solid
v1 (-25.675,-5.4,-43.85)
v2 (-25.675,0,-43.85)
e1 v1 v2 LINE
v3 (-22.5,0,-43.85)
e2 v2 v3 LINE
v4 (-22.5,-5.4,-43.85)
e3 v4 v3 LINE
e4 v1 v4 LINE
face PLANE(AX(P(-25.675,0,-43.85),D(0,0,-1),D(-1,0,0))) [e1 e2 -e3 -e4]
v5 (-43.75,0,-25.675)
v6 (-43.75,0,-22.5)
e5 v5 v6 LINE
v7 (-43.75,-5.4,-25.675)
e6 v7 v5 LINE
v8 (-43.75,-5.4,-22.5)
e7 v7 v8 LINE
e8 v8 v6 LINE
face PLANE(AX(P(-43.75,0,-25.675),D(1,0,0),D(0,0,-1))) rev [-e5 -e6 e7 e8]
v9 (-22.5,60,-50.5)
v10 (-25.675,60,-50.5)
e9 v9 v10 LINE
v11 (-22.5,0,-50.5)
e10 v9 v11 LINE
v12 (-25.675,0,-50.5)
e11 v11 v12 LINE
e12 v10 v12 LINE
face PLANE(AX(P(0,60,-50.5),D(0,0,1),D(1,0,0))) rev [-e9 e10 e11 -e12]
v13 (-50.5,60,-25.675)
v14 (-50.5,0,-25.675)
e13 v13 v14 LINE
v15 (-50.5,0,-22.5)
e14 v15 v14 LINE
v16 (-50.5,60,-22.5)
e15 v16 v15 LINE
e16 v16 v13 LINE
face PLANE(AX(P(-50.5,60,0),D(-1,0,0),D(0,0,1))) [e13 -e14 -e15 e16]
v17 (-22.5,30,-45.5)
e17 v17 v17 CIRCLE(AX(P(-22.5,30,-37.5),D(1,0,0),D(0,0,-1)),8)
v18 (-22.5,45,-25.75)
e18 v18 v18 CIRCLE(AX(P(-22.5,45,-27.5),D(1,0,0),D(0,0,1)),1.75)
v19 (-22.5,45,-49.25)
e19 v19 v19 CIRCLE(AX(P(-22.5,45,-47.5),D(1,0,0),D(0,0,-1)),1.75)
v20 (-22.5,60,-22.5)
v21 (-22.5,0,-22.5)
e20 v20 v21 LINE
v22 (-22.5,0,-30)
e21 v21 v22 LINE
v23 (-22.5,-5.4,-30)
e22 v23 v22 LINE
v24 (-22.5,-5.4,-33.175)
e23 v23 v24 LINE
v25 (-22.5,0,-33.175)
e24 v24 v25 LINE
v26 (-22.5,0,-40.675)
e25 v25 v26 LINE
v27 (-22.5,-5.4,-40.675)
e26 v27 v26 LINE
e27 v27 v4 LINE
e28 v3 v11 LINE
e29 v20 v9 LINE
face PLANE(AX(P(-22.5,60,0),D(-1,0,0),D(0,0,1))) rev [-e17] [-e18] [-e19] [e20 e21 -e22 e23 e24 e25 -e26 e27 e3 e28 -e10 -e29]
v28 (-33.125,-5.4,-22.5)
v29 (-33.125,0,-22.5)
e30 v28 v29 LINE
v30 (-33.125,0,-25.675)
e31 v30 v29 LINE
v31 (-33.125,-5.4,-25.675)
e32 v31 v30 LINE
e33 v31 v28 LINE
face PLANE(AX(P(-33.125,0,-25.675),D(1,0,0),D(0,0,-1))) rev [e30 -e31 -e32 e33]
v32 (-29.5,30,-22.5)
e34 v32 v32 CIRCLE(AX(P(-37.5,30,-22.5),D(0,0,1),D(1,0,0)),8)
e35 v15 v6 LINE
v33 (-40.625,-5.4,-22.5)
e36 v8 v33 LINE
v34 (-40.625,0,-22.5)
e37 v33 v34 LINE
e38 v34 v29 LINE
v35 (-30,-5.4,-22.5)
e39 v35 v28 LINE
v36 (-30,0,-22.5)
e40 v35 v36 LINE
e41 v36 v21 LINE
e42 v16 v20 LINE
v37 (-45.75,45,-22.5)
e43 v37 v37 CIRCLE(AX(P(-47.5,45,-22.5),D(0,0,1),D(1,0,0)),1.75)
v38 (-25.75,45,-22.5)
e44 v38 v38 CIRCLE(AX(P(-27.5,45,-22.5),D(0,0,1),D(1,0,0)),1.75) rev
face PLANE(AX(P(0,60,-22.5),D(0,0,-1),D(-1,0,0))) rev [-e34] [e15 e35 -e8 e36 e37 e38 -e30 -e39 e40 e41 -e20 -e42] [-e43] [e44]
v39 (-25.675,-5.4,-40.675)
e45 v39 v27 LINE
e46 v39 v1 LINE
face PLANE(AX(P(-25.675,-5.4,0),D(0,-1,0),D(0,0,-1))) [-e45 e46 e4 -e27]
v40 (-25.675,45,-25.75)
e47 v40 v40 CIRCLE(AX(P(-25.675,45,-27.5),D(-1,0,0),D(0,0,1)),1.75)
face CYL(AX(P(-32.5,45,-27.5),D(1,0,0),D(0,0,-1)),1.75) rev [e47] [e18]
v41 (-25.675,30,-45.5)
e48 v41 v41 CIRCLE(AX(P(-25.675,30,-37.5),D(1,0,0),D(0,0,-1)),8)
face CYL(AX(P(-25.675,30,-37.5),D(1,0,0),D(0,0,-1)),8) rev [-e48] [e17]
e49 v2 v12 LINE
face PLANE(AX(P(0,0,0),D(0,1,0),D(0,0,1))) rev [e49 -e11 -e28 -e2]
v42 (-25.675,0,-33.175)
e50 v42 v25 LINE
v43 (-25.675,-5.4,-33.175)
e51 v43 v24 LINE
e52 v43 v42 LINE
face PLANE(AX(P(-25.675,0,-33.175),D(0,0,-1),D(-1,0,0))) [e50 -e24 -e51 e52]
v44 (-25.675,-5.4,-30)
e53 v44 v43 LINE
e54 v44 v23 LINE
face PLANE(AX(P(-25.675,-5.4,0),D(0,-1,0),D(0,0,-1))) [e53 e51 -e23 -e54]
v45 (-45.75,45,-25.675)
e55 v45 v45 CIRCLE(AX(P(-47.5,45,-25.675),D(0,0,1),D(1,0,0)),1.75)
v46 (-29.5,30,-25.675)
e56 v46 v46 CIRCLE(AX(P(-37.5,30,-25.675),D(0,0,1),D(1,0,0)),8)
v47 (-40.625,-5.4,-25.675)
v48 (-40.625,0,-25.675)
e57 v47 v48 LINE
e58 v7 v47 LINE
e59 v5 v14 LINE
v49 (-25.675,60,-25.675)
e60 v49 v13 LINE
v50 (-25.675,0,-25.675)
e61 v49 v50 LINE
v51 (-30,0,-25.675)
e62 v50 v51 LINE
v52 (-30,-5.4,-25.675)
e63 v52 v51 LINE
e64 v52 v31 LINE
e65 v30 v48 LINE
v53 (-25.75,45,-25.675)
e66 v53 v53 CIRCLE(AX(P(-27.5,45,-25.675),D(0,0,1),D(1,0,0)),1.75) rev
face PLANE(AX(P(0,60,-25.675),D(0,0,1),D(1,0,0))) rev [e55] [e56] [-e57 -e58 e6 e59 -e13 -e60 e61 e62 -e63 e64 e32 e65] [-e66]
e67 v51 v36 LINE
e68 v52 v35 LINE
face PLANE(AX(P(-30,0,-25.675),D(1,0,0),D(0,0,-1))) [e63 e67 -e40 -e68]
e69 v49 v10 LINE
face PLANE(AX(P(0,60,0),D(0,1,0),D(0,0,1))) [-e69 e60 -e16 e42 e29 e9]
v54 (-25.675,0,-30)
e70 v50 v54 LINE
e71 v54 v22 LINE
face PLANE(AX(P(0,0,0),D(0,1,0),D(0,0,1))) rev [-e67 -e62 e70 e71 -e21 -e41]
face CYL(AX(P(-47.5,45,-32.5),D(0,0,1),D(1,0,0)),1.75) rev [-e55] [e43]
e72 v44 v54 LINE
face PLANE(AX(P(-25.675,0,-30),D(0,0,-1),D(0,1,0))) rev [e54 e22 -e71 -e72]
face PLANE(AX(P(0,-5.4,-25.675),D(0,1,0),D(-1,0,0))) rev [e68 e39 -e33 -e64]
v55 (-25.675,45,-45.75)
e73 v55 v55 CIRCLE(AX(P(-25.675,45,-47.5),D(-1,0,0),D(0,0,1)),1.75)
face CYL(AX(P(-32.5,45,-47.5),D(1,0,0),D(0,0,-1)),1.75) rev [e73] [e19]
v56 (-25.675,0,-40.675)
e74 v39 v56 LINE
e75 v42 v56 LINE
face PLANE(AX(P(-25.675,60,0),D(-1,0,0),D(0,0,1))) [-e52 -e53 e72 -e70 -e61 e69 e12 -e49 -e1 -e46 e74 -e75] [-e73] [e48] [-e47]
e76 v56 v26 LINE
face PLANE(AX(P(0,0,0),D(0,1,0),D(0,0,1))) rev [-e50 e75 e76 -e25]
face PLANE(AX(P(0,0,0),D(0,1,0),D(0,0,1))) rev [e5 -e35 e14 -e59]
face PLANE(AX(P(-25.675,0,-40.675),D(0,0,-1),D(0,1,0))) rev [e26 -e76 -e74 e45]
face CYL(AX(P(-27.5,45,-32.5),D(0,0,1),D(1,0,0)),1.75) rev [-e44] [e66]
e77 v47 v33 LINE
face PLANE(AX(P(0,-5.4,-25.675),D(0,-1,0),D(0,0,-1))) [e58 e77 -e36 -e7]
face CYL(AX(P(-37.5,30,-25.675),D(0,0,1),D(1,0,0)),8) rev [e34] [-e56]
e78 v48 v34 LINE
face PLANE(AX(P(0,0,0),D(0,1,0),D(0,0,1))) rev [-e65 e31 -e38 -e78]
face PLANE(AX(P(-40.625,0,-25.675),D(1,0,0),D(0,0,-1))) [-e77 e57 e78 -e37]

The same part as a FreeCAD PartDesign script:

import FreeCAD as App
import Part
import Sketcher

doc = App.newDocument("Part")
body = doc.addObject("PartDesign::Body", "Body")

# Sketch on XZ plane
sketch1 = doc.addObject("Sketcher::SketchObject", "Sketch")
body.addObject(sketch1)
sketch1.AttachmentSupport = (doc.XZ_Plane, [""])
sketch1.MapMode = "FlatFace"
sketch1.addGeometry(Part.LineSegment(App.Vector(-50.5, -25.7, 0), App.Vector(-50.5, -22.5, 0)), False)
sketch1.addGeometry(Part.LineSegment(App.Vector(-50.5, -22.5, 0), App.Vector(-22.5, -22.5, 0)), False)
sketch1.addGeometry(Part.LineSegment(App.Vector(-22.5, -22.5, 0), App.Vector(-22.5, -50.5, 0)), False)
sketch1.addGeometry(Part.LineSegment(App.Vector(-22.5, -50.5, 0), App.Vector(-25.7, -50.5, 0)), False)
sketch1.addGeometry(Part.LineSegment(App.Vector(-25.7, -50.5, 0), App.Vector(-25.7, -25.7, 0)), False)
sketch1.addGeometry(Part.LineSegment(App.Vector(-25.7, -25.7, 0), App.Vector(-50.5, -25.7, 0)), False)
sketch1.addConstraint(Sketcher.Constraint("Coincident", 0, 2, 1, 1))
sketch1.addConstraint(Sketcher.Constraint("Coincident", 1, 2, 2, 1))
sketch1.addConstraint(Sketcher.Constraint("Coincident", 2, 2, 3, 1))
sketch1.addConstraint(Sketcher.Constraint("Coincident", 3, 2, 4, 1))
sketch1.addConstraint(Sketcher.Constraint("Coincident", 4, 2, 5, 1))
sketch1.addConstraint(Sketcher.Constraint("Coincident", 5, 2, 0, 1))
sketch1.addConstraint(Sketcher.Constraint("Vertical", 0))
sketch1.addConstraint(Sketcher.Constraint("Horizontal", 1))
sketch1.addConstraint(Sketcher.Constraint("Vertical", 2))
sketch1.addConstraint(Sketcher.Constraint("Horizontal", 3))
sketch1.addConstraint(Sketcher.Constraint("Vertical", 4))
sketch1.addConstraint(Sketcher.Constraint("Horizontal", 5))
sketch1.addConstraint(Sketcher.Constraint("Equal", 3, 0))
sketch1.addConstraint(Sketcher.Constraint("Equal", 1, 2))
sketch1.addConstraint(Sketcher.Constraint("DistanceX", 1, 1, 1, 2, 28.0))
sketch1.addConstraint(Sketcher.Constraint("DistanceX", 0, 2, -1, 1, 50.5))
sketch1.addConstraint(Sketcher.Constraint("DistanceY", 0, 2, -1, 1, 22.5))
sketch1.addConstraint(Sketcher.Constraint("DistanceX", 3, 2, 3, 1, 3.175))
pad1 = doc.addObject("PartDesign::Pad", "Pad")
body.addObject(pad1)
pad1.Profile = sketch1
pad1.Length = 60
pad1.Reversed = True

# Sketch on XY plane
sketch2 = doc.addObject("Sketcher::SketchObject", "Sketch001")
body.addObject(sketch2)
sketch2.AttachmentSupport = (doc.XY_Plane, [""])
sketch2.MapMode = "FlatFace"
sketch2.AttachmentOffset = App.Placement(App.Vector(0, 0, -22.5), App.Rotation())
sketch2.addGeometry(Part.LineSegment(App.Vector(-43.8, 0, 0), App.Vector(-43.8, -5.4, 0)), False)
sketch2.addGeometry(Part.LineSegment(App.Vector(-43.8, -5.4, 0), App.Vector(-40.6, -5.4, 0)), False)
sketch2.addGeometry(Part.LineSegment(App.Vector(-40.6, -5.4, 0), App.Vector(-40.6, 0, 0)), False)
sketch2.addGeometry(Part.LineSegment(App.Vector(-40.6, 0, 0), App.Vector(-43.8, 0, 0)), False)
sketch2.addGeometry(Part.LineSegment(App.Vector(-33.1, 0, 0), App.Vector(-33.1, -5.4, 0)), False)
sketch2.addGeometry(Part.LineSegment(App.Vector(-33.1, -5.4, 0), App.Vector(-30, -5.4, 0)), False)
sketch2.addGeometry(Part.LineSegment(App.Vector(-30, -5.4, 0), App.Vector(-30, 0, 0)), False)
sketch2.addGeometry(Part.LineSegment(App.Vector(-30, 0, 0), App.Vector(-33.1, 0, 0)), False)
sketch2.addConstraint(Sketcher.Constraint("Coincident", 0, 2, 1, 1))
sketch2.addConstraint(Sketcher.Constraint("Coincident", 1, 2, 2, 1))
sketch2.addConstraint(Sketcher.Constraint("Coincident", 2, 2, 3, 1))
sketch2.addConstraint(Sketcher.Constraint("Coincident", 3, 2, 0, 1))
sketch2.addConstraint(Sketcher.Constraint("Coincident", 4, 2, 5, 1))
sketch2.addConstraint(Sketcher.Constraint("Coincident", 5, 2, 6, 1))
sketch2.addConstraint(Sketcher.Constraint("Coincident", 6, 2, 7, 1))
sketch2.addConstraint(Sketcher.Constraint("Coincident", 7, 2, 4, 1))
sketch2.addConstraint(Sketcher.Constraint("Vertical", 0))
sketch2.addConstraint(Sketcher.Constraint("Horizontal", 1))
sketch2.addConstraint(Sketcher.Constraint("Vertical", 2))
sketch2.addConstraint(Sketcher.Constraint("Horizontal", 3))
sketch2.addConstraint(Sketcher.Constraint("Vertical", 4))
sketch2.addConstraint(Sketcher.Constraint("Horizontal", 5))
sketch2.addConstraint(Sketcher.Constraint("Vertical", 6))
sketch2.addConstraint(Sketcher.Constraint("Horizontal", 7))
sketch2.addConstraint(Sketcher.Constraint("PointOnObject", 2, 2, -1))
sketch2.addConstraint(Sketcher.Constraint("PointOnObject", 6, 2, -1))
sketch2.addConstraint(Sketcher.Constraint("Horizontal", 1, 2, 4, 2))
sketch2.addConstraint(Sketcher.Constraint("Equal", 3, 5))
sketch2.addConstraint(Sketcher.Constraint("DistanceY", 0, 2, 0, 1, 5.4))
sketch2.addConstraint(Sketcher.Constraint("DistanceX", 5, 2, -1, 1, 30.0))
sketch2.addConstraint(Sketcher.Constraint("DistanceX", 1, 2, 4, 2, 7.5))
sketch2.addConstraint(Sketcher.Constraint("DistanceX", 1, 1, 1, 2, 3.125))
pad2 = doc.addObject("PartDesign::Pad", "Pad001")
body.addObject(pad2)
pad2.Profile = sketch2
pad2.Length = 3.175
pad2.Reversed = True

# Sketch on XY plane
sketch3 = doc.addObject("Sketcher::SketchObject", "Sketch002")
body.addObject(sketch3)
sketch3.AttachmentSupport = (doc.XY_Plane, [""])
sketch3.MapMode = "FlatFace"
sketch3.AttachmentOffset = App.Placement(App.Vector(0, 0, -22.5), App.Rotation())
sketch3.addGeometry(Part.Circle(App.Vector(-38, 30, 0), App.Vector(0, 0, 1), 8), False)
sketch3.addConstraint(Sketcher.Constraint("Diameter", 0, 16.0))
sketch3.addConstraint(Sketcher.Constraint("DistanceY", -1, 1, 0, 3, 30.0))
sketch3.addConstraint(Sketcher.Constraint("DistanceX", 0, 3, -1, 1, 37.5))
pocket1 = doc.addObject("PartDesign::Pocket", "Pocket")
body.addObject(pocket1)
pocket1.Profile = sketch3
pocket1.Length = 3.175

# Sketch on YZ plane
sketch4 = doc.addObject("Sketcher::SketchObject", "Sketch003")
body.addObject(sketch4)
sketch4.AttachmentSupport = (doc.YZ_Plane, [""])
sketch4.MapMode = "FlatFace"
sketch4.AttachmentOffset = App.Placement(App.Vector(0, 0, -22.5), App.Rotation())
sketch4.addGeometry(Part.Circle(App.Vector(30, -38, 0), App.Vector(0, 0, 1), 8), False)
sketch4.addConstraint(Sketcher.Constraint("Diameter", 0, 16.0))
sketch4.addConstraint(Sketcher.Constraint("DistanceX", -1, 1, 0, 3, 30.0))
sketch4.addConstraint(Sketcher.Constraint("DistanceY", 0, 3, -1, 1, 37.5))
pocket2 = doc.addObject("PartDesign::Pocket", "Pocket001")
body.addObject(pocket2)
pocket2.Profile = sketch4
pocket2.Length = 3.175

# Sketch on YZ plane
sketch5 = doc.addObject("Sketcher::SketchObject", "Sketch004")
body.addObject(sketch5)
sketch5.AttachmentSupport = (doc.YZ_Plane, [""])
sketch5.MapMode = "FlatFace"
sketch5.AttachmentOffset = App.Placement(App.Vector(0, 0, -22.5), App.Rotation())
sketch5.addGeometry(Part.LineSegment(App.Vector(0, -40.7, 0), App.Vector(-5.4, -40.7, 0)), False)
sketch5.addGeometry(Part.LineSegment(App.Vector(-5.4, -40.7, 0), App.Vector(-5.4, -43.9, 0)), False)
sketch5.addGeometry(Part.LineSegment(App.Vector(-5.4, -43.9, 0), App.Vector(0, -43.9, 0)), False)
sketch5.addGeometry(Part.LineSegment(App.Vector(0, -43.9, 0), App.Vector(0, -40.7, 0)), False)
sketch5.addGeometry(Part.LineSegment(App.Vector(0, -30, 0), App.Vector(-5.4, -30, 0)), False)
sketch5.addGeometry(Part.LineSegment(App.Vector(-5.4, -30, 0), App.Vector(-5.4, -33.2, 0)), False)
sketch5.addGeometry(Part.LineSegment(App.Vector(-5.4, -33.2, 0), App.Vector(0, -33.2, 0)), False)
sketch5.addGeometry(Part.LineSegment(App.Vector(0, -33.2, 0), App.Vector(0, -30, 0)), False)
sketch5.addConstraint(Sketcher.Constraint("Coincident", 0, 2, 1, 1))
sketch5.addConstraint(Sketcher.Constraint("Coincident", 1, 2, 2, 1))
sketch5.addConstraint(Sketcher.Constraint("Coincident", 2, 2, 3, 1))
sketch5.addConstraint(Sketcher.Constraint("Coincident", 3, 2, 0, 1))
sketch5.addConstraint(Sketcher.Constraint("Coincident", 4, 2, 5, 1))
sketch5.addConstraint(Sketcher.Constraint("Coincident", 5, 2, 6, 1))
sketch5.addConstraint(Sketcher.Constraint("Coincident", 6, 2, 7, 1))
sketch5.addConstraint(Sketcher.Constraint("Coincident", 7, 2, 4, 1))
sketch5.addConstraint(Sketcher.Constraint("Horizontal", 0))
sketch5.addConstraint(Sketcher.Constraint("Vertical", 1))
sketch5.addConstraint(Sketcher.Constraint("Horizontal", 2))
sketch5.addConstraint(Sketcher.Constraint("Vertical", 3))
sketch5.addConstraint(Sketcher.Constraint("Horizontal", 4))
sketch5.addConstraint(Sketcher.Constraint("Vertical", 5))
sketch5.addConstraint(Sketcher.Constraint("Horizontal", 6))
sketch5.addConstraint(Sketcher.Constraint("Vertical", 7))
sketch5.addConstraint(Sketcher.Constraint("PointOnObject", 2, 2, -2))
sketch5.addConstraint(Sketcher.Constraint("PointOnObject", 6, 2, -2))
sketch5.addConstraint(Sketcher.Constraint("Vertical", 1, 2, 4, 2))
sketch5.addConstraint(Sketcher.Constraint("Equal", 3, 5))
sketch5.addConstraint(Sketcher.Constraint("DistanceX", 0, 2, 0, 1, 5.4))
sketch5.addConstraint(Sketcher.Constraint("DistanceY", 4, 2, -1, 1, 30.0))
sketch5.addConstraint(Sketcher.Constraint("DistanceY", 0, 2, 5, 2, 7.5))
sketch5.addConstraint(Sketcher.Constraint("DistanceY", 1, 2, 1, 1, 3.175))
pad3 = doc.addObject("PartDesign::Pad", "Pad002")
body.addObject(pad3)
pad3.Profile = sketch5
pad3.Length = 3.175
pad3.Reversed = True

# Sketch on XY plane
sketch6 = doc.addObject("Sketcher::SketchObject", "Sketch005")
body.addObject(sketch6)
sketch6.AttachmentSupport = (doc.XY_Plane, [""])
sketch6.MapMode = "FlatFace"
sketch6.AttachmentOffset = App.Placement(App.Vector(0, 0, -22.5), App.Rotation())
sketch6.addGeometry(Part.Circle(App.Vector(-47.5, 45, 0), App.Vector(0, 0, 1), 1.8), False)
sketch6.addGeometry(Part.Circle(App.Vector(-27.5, 45, 0), App.Vector(0, 0, 1), 1.8), False)
sketch6.addConstraint(Sketcher.Constraint("Equal", 0, 1))
sketch6.addConstraint(Sketcher.Constraint("Horizontal", 0, 3, 1, 3))
sketch6.addConstraint(Sketcher.Constraint("Diameter", 0, 3.5))
sketch6.addConstraint(Sketcher.Constraint("DistanceY", -1, 1, 0, 3, 45.0))
sketch6.addConstraint(Sketcher.Constraint("DistanceX", 0, 3, 1, 3, 20.0))
sketch6.addConstraint(Sketcher.Constraint("DistanceX", 0, 3, -1, 1, 47.5))
pocket3 = doc.addObject("PartDesign::Pocket", "Pocket002")
body.addObject(pocket3)
pocket3.Profile = sketch6
pocket3.Length = 10

# Sketch on YZ plane
sketch7 = doc.addObject("Sketcher::SketchObject", "Sketch006")
body.addObject(sketch7)
sketch7.AttachmentSupport = (doc.YZ_Plane, [""])
sketch7.MapMode = "FlatFace"
sketch7.AttachmentOffset = App.Placement(App.Vector(0, 0, -22.5), App.Rotation())
sketch7.addGeometry(Part.Circle(App.Vector(45, -47.5, 0), App.Vector(0, 0, 1), 1.8), False)
sketch7.addGeometry(Part.Circle(App.Vector(45, -27.5, 0), App.Vector(0, 0, 1), 1.8), False)
sketch7.addConstraint(Sketcher.Constraint("Equal", 0, 1))
sketch7.addConstraint(Sketcher.Constraint("Vertical", 0, 3, 1, 3))
sketch7.addConstraint(Sketcher.Constraint("Diameter", 0, 3.5))
sketch7.addConstraint(Sketcher.Constraint("DistanceX", -1, 1, 0, 3, 45.0))
sketch7.addConstraint(Sketcher.Constraint("DistanceY", 0, 3, 1, 3, 20.0))
sketch7.addConstraint(Sketcher.Constraint("DistanceY", 0, 3, -1, 1, 47.5))
pocket4 = doc.addObject("PartDesign::Pocket", "Pocket003")
body.addObject(pocket4)
pocket4.Profile = sketch7
pocket4.Length = 10

doc.recompute()
